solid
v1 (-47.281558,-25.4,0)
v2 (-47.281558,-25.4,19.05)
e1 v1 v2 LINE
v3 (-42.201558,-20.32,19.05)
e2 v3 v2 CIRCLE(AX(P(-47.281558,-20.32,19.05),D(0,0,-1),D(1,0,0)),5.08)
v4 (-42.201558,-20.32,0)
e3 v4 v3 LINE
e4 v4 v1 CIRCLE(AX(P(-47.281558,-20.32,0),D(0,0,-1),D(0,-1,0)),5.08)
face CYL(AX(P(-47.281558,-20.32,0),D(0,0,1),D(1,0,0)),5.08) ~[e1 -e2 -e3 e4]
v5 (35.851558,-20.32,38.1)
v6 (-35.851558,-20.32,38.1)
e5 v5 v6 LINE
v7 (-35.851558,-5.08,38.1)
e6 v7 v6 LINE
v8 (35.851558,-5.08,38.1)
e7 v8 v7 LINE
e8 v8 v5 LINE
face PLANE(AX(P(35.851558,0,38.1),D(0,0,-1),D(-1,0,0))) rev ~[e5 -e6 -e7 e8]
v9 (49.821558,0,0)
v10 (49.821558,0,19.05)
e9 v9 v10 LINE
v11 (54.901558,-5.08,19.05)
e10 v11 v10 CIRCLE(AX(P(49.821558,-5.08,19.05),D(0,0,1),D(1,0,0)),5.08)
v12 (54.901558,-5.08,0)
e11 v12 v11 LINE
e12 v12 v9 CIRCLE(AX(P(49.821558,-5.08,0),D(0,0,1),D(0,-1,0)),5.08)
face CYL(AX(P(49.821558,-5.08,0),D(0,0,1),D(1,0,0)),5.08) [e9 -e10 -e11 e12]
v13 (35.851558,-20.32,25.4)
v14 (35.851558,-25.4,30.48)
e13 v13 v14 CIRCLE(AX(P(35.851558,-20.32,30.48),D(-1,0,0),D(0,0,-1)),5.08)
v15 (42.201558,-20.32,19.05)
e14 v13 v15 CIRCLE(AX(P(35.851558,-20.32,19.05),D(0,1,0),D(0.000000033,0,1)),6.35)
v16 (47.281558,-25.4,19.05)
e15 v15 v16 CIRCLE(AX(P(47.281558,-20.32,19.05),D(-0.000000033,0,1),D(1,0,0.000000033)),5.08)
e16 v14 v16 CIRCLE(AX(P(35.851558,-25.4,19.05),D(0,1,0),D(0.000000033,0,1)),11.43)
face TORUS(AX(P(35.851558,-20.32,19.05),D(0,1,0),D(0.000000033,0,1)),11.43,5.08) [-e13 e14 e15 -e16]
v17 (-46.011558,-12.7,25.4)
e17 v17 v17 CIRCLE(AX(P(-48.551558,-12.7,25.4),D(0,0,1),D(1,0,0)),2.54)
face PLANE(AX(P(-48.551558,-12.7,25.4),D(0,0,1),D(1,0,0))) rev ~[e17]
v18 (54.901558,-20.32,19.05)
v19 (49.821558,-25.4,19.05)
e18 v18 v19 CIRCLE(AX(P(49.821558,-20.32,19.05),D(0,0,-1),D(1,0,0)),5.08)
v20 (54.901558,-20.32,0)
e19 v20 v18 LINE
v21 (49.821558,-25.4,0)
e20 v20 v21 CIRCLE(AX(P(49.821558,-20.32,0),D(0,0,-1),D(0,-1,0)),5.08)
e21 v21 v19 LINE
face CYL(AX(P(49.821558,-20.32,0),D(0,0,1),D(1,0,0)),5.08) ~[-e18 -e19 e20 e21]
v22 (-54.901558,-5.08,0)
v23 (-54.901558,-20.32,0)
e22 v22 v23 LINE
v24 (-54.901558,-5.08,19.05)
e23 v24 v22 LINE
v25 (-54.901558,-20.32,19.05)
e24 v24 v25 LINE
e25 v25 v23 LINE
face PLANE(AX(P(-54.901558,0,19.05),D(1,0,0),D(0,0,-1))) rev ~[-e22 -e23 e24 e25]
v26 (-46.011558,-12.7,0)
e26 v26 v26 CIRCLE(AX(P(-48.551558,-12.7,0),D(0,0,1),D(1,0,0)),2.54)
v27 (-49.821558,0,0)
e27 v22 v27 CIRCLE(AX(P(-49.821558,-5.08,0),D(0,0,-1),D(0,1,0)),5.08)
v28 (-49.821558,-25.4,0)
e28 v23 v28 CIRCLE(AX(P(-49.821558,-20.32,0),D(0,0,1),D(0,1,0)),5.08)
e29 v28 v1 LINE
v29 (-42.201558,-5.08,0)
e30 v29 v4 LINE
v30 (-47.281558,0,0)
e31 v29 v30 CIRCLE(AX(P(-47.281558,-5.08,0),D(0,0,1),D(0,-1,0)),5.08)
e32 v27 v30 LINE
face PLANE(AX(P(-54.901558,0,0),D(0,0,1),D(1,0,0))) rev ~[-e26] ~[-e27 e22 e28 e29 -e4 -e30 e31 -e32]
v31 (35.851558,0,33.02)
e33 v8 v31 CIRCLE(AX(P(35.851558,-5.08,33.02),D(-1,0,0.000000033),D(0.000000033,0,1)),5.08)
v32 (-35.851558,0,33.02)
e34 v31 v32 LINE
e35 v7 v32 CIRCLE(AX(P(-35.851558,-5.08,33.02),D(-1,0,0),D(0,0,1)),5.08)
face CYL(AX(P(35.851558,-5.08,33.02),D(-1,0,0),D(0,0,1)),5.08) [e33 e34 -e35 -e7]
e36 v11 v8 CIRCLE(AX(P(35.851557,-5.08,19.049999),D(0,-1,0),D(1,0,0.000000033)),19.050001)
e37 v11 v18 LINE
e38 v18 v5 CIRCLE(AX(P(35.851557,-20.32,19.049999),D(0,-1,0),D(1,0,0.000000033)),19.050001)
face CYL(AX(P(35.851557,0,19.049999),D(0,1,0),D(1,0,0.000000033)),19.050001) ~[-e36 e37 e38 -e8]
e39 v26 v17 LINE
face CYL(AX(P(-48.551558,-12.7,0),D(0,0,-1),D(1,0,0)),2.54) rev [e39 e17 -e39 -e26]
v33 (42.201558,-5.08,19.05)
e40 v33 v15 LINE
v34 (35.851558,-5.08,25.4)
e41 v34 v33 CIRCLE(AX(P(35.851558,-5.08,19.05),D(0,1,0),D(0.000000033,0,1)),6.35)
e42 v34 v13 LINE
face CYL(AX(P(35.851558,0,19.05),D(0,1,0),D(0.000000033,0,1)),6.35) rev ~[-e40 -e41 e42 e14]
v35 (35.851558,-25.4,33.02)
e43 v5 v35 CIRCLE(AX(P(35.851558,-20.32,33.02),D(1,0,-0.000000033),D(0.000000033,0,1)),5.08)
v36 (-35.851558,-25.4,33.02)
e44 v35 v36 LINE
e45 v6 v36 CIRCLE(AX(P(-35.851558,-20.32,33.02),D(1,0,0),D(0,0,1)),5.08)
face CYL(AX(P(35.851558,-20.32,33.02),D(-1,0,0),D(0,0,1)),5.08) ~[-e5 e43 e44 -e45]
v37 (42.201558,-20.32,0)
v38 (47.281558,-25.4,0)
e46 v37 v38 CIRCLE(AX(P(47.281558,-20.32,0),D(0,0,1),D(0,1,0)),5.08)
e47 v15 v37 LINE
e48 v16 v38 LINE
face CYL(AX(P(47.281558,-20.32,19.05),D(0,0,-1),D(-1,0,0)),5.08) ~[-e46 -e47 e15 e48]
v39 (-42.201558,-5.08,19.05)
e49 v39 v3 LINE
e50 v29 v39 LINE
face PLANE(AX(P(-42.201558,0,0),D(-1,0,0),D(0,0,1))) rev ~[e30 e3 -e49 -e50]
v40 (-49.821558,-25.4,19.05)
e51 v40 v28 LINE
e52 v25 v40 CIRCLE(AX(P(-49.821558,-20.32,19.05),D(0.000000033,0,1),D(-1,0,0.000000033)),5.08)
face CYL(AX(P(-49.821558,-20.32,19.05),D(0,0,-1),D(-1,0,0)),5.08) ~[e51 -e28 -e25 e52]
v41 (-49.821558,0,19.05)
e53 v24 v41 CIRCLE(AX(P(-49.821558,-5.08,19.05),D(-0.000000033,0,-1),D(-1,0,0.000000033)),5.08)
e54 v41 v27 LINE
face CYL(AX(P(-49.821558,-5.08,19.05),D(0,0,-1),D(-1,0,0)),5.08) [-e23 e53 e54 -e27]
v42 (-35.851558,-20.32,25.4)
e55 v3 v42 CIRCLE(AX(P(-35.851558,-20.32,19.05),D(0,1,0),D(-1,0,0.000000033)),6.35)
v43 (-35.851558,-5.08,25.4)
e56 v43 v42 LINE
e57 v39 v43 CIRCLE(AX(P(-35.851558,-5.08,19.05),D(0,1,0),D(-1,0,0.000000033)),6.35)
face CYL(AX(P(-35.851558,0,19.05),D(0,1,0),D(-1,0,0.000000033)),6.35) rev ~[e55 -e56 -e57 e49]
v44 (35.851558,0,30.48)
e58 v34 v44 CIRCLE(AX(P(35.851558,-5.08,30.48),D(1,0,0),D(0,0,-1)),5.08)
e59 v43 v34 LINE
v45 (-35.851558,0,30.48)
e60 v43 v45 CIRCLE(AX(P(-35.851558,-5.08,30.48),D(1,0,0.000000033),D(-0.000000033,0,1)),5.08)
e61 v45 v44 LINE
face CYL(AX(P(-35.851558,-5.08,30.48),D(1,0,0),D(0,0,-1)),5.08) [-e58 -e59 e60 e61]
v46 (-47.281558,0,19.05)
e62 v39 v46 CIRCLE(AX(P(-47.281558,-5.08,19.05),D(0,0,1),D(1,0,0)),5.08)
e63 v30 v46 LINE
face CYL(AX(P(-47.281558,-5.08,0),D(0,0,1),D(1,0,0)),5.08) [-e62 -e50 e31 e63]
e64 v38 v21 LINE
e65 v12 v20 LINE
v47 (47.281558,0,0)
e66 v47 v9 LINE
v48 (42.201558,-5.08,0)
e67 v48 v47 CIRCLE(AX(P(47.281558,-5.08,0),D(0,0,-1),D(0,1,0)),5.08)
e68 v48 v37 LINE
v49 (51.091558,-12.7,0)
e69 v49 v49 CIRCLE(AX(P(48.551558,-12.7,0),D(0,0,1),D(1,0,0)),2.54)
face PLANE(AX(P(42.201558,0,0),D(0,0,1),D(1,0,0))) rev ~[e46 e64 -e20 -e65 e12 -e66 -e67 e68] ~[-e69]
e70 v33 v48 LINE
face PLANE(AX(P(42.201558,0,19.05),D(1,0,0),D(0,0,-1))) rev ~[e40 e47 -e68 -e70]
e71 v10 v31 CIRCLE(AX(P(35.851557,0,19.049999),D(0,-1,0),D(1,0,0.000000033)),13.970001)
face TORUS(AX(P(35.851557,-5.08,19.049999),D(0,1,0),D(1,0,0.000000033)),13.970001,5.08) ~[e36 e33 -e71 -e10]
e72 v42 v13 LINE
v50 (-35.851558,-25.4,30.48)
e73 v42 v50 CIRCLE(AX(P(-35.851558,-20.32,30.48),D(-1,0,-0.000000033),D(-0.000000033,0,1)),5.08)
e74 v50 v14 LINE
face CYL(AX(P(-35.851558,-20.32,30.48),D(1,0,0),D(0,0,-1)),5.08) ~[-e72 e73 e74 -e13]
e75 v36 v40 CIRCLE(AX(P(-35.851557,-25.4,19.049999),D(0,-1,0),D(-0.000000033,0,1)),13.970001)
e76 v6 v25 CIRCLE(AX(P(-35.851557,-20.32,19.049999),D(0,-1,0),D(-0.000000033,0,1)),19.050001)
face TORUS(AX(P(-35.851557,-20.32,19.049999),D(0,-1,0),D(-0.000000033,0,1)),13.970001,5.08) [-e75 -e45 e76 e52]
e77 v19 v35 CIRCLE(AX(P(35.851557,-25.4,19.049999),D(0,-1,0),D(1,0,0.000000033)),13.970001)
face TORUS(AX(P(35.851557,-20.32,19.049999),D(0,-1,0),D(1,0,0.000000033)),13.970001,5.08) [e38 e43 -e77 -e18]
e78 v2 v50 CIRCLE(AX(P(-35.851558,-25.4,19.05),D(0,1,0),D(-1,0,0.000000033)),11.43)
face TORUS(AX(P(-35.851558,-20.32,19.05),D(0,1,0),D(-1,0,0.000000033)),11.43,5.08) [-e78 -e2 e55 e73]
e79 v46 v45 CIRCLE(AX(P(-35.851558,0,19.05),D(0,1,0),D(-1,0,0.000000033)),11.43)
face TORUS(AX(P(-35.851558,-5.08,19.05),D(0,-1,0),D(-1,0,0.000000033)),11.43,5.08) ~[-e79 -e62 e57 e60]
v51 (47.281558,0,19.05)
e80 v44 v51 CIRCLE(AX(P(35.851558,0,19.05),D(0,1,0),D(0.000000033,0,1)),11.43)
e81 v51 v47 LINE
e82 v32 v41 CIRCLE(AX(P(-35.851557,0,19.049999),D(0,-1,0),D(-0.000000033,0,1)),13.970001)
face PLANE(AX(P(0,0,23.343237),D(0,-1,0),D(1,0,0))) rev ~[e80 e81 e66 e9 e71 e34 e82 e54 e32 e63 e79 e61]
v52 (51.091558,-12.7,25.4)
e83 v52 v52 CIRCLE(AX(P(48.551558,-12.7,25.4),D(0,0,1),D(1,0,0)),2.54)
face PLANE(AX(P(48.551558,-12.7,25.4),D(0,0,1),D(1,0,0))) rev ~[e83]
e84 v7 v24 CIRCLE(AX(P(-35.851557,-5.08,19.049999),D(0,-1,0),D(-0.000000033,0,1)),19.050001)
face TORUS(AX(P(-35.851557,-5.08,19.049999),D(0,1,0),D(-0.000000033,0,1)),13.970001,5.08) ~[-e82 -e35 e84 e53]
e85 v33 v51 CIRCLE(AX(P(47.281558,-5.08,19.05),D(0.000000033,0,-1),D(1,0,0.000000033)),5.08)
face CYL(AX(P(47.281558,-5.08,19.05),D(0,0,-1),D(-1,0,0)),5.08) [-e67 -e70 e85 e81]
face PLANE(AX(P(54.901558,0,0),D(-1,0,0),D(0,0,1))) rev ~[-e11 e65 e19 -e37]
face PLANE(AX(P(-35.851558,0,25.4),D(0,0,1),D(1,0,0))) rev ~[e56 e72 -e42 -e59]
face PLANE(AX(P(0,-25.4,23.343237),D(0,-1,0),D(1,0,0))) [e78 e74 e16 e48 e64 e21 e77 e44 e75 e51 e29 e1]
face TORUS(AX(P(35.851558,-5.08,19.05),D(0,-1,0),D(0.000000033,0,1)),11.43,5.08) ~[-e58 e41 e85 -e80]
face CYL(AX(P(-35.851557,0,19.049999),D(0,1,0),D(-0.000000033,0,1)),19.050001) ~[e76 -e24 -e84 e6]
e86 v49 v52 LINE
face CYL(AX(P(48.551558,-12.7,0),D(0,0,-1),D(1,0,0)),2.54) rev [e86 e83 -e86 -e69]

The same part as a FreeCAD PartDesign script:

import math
import FreeCAD as App
import Part
import Sketcher
Q = App.Units.Quantity


def edges_at(feature, points):
    """Names of the edges that pass closest to the given points."""
    edges = feature.Shape.Edges
    near = lambda p: min(range(len(edges)), key=lambda i: edges[i].distToShape(Part.Vertex(*p))[0])
    return sorted({f"Edge{near(p) + 1}" for p in points})

doc = App.newDocument("Part")
body = doc.addObject("PartDesign::Body", "Body")

sketch1 = doc.addObject("Sketcher::SketchObject", "Sketch")
body.addObject(sketch1)
sketch1.AttachmentSupport = (doc.XZ_Plane, [""])
sketch1.MapMode = "FlatFace"
sketch1.addGeometry(Part.ArcOfCircle(Part.Circle(App.Vector(36, 19, 0), App.Vector(0, 0, 1), 19), math.radians(0), math.radians(90)), False)
sketch1.addGeometry(Part.LineSegment(App.Vector(36, 38, 0), App.Vector(-36, 38, 0)), False)
sketch1.addGeometry(Part.ArcOfCircle(Part.Circle(App.Vector(-36, 19, 0), App.Vector(0, 0, 1), 19), math.radians(90), math.radians(180)), False)
sketch1.addGeometry(Part.LineSegment(App.Vector(-55, 19, 0), App.Vector(-55, 0, 0)), False)
sketch1.addGeometry(Part.LineSegment(App.Vector(-55, 0, 0), App.Vector(-42, 0, 0)), False)
sketch1.addGeometry(Part.LineSegment(App.Vector(-42, 0, 0), App.Vector(-42, 19, 0)), False)
sketch1.addGeometry(Part.ArcOfCircle(Part.Circle(App.Vector(-36, 19, 0), App.Vector(0, 0, 1), 6), math.radians(90), math.radians(180)), False)
sketch1.addGeometry(Part.LineSegment(App.Vector(-36, 25, 0), App.Vector(36, 25, 0)), False)
sketch1.addGeometry(Part.ArcOfCircle(Part.Circle(App.Vector(36, 19, 0), App.Vector(0, 0, 1), 6), math.radians(0), math.radians(90)), False)
sketch1.addGeometry(Part.LineSegment(App.Vector(42, 19, 0), App.Vector(42, 0, 0)), False)
sketch1.addGeometry(Part.LineSegment(App.Vector(42, 0, 0), App.Vector(55, 0, 0)), False)
sketch1.addGeometry(Part.LineSegment(App.Vector(55, 0, 0), App.Vector(55, 19, 0)), False)
sketch1.addConstraint(Sketcher.Constraint("Tangent", 0, 2, 1, 1))
sketch1.addConstraint(Sketcher.Constraint("Tangent", 1, 2, 2, 1))
sketch1.addConstraint(Sketcher.Constraint("Tangent", 2, 2, 3, 1))
sketch1.addConstraint(Sketcher.Constraint("Coincident", 3, 2, 4, 1))
sketch1.addConstraint(Sketcher.Constraint("Coincident", 4, 2, 5, 1))
sketch1.addConstraint(Sketcher.Constraint("Tangent", 5, 2, 6, 2))
sketch1.addConstraint(Sketcher.Constraint("Tangent", 6, 1, 7, 1))
sketch1.addConstraint(Sketcher.Constraint("Tangent", 7, 2, 8, 2))
sketch1.addConstraint(Sketcher.Constraint("Tangent", 8, 1, 9, 1))
sketch1.addConstraint(Sketcher.Constraint("Coincident", 9, 2, 10, 1))
sketch1.addConstraint(Sketcher.Constraint("Coincident", 10, 2, 11, 1))
sketch1.addConstraint(Sketcher.Constraint("Tangent", 11, 2, 0, 1))
sketch1.addConstraint(Sketcher.Constraint("Horizontal", 1))
sketch1.addConstraint(Sketcher.Constraint("Vertical", 3))
sketch1.addConstraint(Sketcher.Constraint("Horizontal", 4))
sketch1.addConstraint(Sketcher.Constraint("Vertical", 5))
sketch1.addConstraint(Sketcher.Constraint("Horizontal", 7))
sketch1.addConstraint(Sketcher.Constraint("Vertical", 9))
sketch1.addConstraint(Sketcher.Constraint("Horizontal", 10))
sketch1.addConstraint(Sketcher.Constraint("Vertical", 11))
sketch1.addConstraint(Sketcher.Constraint("Coincident", 6, 3, 2, 3))
sketch1.addConstraint(Sketcher.Constraint("Coincident", 8, 3, 0, 3))
sketch1.addConstraint(Sketcher.Constraint("Equal", 0, 2))
sketch1.addConstraint(Sketcher.Constraint("Symmetric", 4, 2, 9, 2, -1, 1))
sketch1.addConstraint(Sketcher.Constraint("PointOnObject", 3, 2, -1))
sketch1.addConstraint(Sketcher.Constraint("Radius", 0, Q("0.75 in")))
sketch1.addConstraint(Sketcher.Constraint("Radius", 6, Q("0.25 in")))
sketch1.addConstraint(Sketcher.Constraint("DistanceY", -1, 1, 6, 1, Q("1 in")))
sketch1.addConstraint(Sketcher.Constraint("DistanceX", 1, 2, 1, 1, Q("71.703116 mm")))
pad1 = doc.addObject("PartDesign::Pad", "Pad")
body.addObject(pad1)
pad1.Profile = sketch1
pad1.Length = Q("1 in")
doc.recompute()

fillet = doc.addObject("PartDesign::Fillet", "Fillet")
body.addObject(fillet)
fillet.Base = (pad1, edges_at(pad1, [
    (0, -25.4, 38.1),
    (0, 0, 38.1),
    (0, -25.4, 25.4),
    (0, 0, 25.4),
]))
fillet.Radius = Q("0.2 in")

sketch2 = doc.addObject("Sketcher::SketchObject", "Sketch001")
body.addObject(sketch2)
sketch2.AttachmentSupport = (doc.XY_Plane, [""])
sketch2.MapMode = "FlatFace"
sketch2.addGeometry(Part.Circle(App.Vector(-48.6, -12.7, 0), App.Vector(0, 0, 1), 2.5), False)
sketch2.addGeometry(Part.Circle(App.Vector(48.6, -12.7, 0), App.Vector(0, 0, 1), 2.5), False)
sketch2.addConstraint(Sketcher.Constraint("Equal", 0, 1))
sketch2.addConstraint(Sketcher.Constraint("Symmetric", 0, 3, 1, 3, -2))
sketch2.addConstraint(Sketcher.Constraint("Diameter", 0, Q("0.2 in")))
sketch2.addConstraint(Sketcher.Constraint("DistanceY", 0, 3, -1, 1, Q("0.5 in")))
sketch2.addConstraint(Sketcher.Constraint("DistanceX", 0, 3, -1, 1, Q("48.551558 mm")))
pocket1 = doc.addObject("PartDesign::Pocket", "Pocket")
body.addObject(pocket1)
pocket1.Profile = sketch2
pocket1.Length = Q("1 in")
pocket1.Reversed = True

doc.recompute()
